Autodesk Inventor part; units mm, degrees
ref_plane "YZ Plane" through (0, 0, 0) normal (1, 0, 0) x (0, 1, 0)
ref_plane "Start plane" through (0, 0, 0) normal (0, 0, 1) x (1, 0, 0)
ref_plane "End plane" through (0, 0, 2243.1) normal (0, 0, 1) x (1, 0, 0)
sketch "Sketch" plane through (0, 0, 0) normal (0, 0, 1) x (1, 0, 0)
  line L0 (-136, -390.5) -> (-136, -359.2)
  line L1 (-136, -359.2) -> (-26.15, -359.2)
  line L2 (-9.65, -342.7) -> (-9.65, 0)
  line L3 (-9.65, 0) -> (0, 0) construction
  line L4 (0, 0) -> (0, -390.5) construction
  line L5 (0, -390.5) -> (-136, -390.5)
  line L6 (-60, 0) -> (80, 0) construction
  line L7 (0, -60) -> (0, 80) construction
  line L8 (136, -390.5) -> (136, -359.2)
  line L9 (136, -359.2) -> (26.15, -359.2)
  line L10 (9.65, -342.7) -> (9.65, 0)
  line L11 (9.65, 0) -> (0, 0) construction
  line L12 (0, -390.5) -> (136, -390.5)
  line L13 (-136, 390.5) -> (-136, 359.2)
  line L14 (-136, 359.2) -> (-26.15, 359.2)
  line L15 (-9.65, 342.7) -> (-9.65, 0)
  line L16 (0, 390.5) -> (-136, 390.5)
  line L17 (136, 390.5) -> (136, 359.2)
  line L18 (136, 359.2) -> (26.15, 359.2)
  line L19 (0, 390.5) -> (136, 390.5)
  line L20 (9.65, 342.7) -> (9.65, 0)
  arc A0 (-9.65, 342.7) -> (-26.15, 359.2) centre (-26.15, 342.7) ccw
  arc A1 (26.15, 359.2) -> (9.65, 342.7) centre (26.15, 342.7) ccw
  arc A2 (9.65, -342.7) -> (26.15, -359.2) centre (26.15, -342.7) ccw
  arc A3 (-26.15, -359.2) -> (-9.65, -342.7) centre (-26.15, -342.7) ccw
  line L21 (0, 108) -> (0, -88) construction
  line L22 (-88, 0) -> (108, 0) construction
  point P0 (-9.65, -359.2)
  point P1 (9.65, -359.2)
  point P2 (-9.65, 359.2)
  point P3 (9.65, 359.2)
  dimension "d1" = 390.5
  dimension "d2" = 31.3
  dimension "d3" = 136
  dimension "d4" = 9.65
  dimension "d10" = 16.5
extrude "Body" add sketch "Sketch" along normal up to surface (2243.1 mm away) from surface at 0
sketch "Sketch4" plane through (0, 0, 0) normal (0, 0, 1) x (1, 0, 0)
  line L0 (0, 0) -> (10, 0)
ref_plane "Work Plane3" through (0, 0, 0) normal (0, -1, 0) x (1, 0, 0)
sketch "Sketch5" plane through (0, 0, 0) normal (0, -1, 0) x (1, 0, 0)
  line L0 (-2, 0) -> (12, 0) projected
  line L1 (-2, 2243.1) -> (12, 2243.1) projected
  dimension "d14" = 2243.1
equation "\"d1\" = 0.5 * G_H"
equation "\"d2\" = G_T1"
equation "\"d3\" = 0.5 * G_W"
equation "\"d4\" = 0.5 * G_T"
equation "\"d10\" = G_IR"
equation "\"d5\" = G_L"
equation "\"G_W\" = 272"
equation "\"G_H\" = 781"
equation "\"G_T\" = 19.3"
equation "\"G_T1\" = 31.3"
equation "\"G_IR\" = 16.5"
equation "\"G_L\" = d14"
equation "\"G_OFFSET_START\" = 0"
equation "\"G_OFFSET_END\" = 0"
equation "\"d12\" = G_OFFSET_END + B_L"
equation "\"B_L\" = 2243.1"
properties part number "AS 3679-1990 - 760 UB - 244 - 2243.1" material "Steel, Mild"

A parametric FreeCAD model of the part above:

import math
import FreeCAD as App
import Part
import Sketcher
Q = App.Units.Quantity

doc = App.newDocument("Part")
body = doc.addObject("PartDesign::Body", "Body")

# Sketch on XY plane
sketch1 = body.newObject("Sketcher::SketchObject", "Sketch")
sketch1.AttachmentSupport = (doc.getObject("XY_Plane"), [""])
sketch1.MapMode = "FlatFace"
sketch1.addGeometry([
    Part.LineSegment(App.Vector(-136, -359, 0), App.Vector(-136, -390, 0)),  # 0
    Part.LineSegment(App.Vector(-136, -390, 0), App.Vector(136, -390, 0)),  # 1
    Part.LineSegment(App.Vector(136, -390, 0), App.Vector(136, -359, 0)),  # 2
    Part.LineSegment(App.Vector(136, -359, 0), App.Vector(26, -359, 0)),  # 3
    Part.ArcOfCircle(Part.Circle(App.Vector(26, -343, 0), App.Vector(0, 0, 1), 16), math.radians(180), math.radians(270)),  # 4
    Part.LineSegment(App.Vector(10, -343, 0), App.Vector(10, 343, 0)),  # 5
    Part.ArcOfCircle(Part.Circle(App.Vector(26, 343, 0), App.Vector(0, 0, 1), 16), math.radians(90), math.radians(180)),  # 6
    Part.LineSegment(App.Vector(26, 359, 0), App.Vector(136, 359, 0)),  # 7
    Part.LineSegment(App.Vector(136, 359, 0), App.Vector(136, 390, 0)),  # 8
    Part.LineSegment(App.Vector(136, 390, 0), App.Vector(-136, 390, 0)),  # 9
    Part.LineSegment(App.Vector(-136, 390, 0), App.Vector(-136, 359, 0)),  # 10
    Part.LineSegment(App.Vector(-136, 359, 0), App.Vector(-26, 359, 0)),  # 11
    Part.ArcOfCircle(Part.Circle(App.Vector(-26, 343, 0), App.Vector(0, 0, 1), 16), math.radians(0), math.radians(90)),  # 12
    Part.LineSegment(App.Vector(-10, 343, 0), App.Vector(-10, -343, 0)),  # 13
    Part.ArcOfCircle(Part.Circle(App.Vector(-26, -343, 0), App.Vector(0, 0, 1), 16), math.radians(-90), math.radians(0)),  # 14
    Part.LineSegment(App.Vector(-26, -359, 0), App.Vector(-136, -359, 0)),  # 15
], False)
sketch1.addConstraint([
    Sketcher.Constraint("Coincident", 0, 2, 1, 1),
    Sketcher.Constraint("Coincident", 1, 2, 2, 1),
    Sketcher.Constraint("Coincident", 2, 2, 3, 1),
    Sketcher.Constraint("Tangent", 3, 2, 4, 2),
    Sketcher.Constraint("Tangent", 4, 1, 5, 1),
    Sketcher.Constraint("Tangent", 5, 2, 6, 2),
    Sketcher.Constraint("Tangent", 6, 1, 7, 1),
    Sketcher.Constraint("Coincident", 7, 2, 8, 1),
    Sketcher.Constraint("Coincident", 8, 2, 9, 1),
    Sketcher.Constraint("Coincident", 9, 2, 10, 1),
    Sketcher.Constraint("Coincident", 10, 2, 11, 1),
    Sketcher.Constraint("Tangent", 11, 2, 12, 2),
    Sketcher.Constraint("Tangent", 12, 1, 13, 1),
    Sketcher.Constraint("Tangent", 13, 2, 14, 2),
    Sketcher.Constraint("Tangent", 14, 1, 15, 1),
    Sketcher.Constraint("Coincident", 15, 2, 0, 1),
    Sketcher.Constraint("Vertical", 0),
    Sketcher.Constraint("Horizontal", 1),
    Sketcher.Constraint("Vertical", 2),
    Sketcher.Constraint("Horizontal", 3),
    Sketcher.Constraint("Vertical", 5),
    Sketcher.Constraint("Horizontal", 7),
    Sketcher.Constraint("Vertical", 8),
    Sketcher.Constraint("Horizontal", 9),
    Sketcher.Constraint("Vertical", 10),
    Sketcher.Constraint("Horizontal", 11),
    Sketcher.Constraint("Vertical", 13),
    Sketcher.Constraint("Horizontal", 15),
    Sketcher.Constraint("Equal", 4, 6),
    Sketcher.Constraint("Equal", 6, 12),
    Sketcher.Constraint("Equal", 12, 14),
    Sketcher.Constraint("Symmetric", 4, 3, 12, 3, -1, 1),
    Sketcher.Constraint("Symmetric", 0, 2, 8, 2, -1, 1),
    Sketcher.Constraint("Symmetric", 7, 2, 10, 2, -2),
    Sketcher.Constraint("Symmetric", 2, 2, 15, 2, -2),
    Sketcher.Constraint("Radius", 4, Q("16.5 mm")),
    Sketcher.Constraint("DistanceY", 0, 2, 0, 1, Q("31.3 mm")),
    Sketcher.Constraint("DistanceX", 0, 2, -1, 1, Q("136 mm")),
    Sketcher.Constraint("DistanceY", 0, 2, -1, 1, Q("390.5 mm")),
    Sketcher.Constraint("DistanceX", -1, 1, 4, 1, Q("9.65 mm")),
])
pad1 = body.newObject("PartDesign::Pad", "Pad")
pad1.Profile = sketch1
pad1.Length = 2243.1

doc.recompute()
